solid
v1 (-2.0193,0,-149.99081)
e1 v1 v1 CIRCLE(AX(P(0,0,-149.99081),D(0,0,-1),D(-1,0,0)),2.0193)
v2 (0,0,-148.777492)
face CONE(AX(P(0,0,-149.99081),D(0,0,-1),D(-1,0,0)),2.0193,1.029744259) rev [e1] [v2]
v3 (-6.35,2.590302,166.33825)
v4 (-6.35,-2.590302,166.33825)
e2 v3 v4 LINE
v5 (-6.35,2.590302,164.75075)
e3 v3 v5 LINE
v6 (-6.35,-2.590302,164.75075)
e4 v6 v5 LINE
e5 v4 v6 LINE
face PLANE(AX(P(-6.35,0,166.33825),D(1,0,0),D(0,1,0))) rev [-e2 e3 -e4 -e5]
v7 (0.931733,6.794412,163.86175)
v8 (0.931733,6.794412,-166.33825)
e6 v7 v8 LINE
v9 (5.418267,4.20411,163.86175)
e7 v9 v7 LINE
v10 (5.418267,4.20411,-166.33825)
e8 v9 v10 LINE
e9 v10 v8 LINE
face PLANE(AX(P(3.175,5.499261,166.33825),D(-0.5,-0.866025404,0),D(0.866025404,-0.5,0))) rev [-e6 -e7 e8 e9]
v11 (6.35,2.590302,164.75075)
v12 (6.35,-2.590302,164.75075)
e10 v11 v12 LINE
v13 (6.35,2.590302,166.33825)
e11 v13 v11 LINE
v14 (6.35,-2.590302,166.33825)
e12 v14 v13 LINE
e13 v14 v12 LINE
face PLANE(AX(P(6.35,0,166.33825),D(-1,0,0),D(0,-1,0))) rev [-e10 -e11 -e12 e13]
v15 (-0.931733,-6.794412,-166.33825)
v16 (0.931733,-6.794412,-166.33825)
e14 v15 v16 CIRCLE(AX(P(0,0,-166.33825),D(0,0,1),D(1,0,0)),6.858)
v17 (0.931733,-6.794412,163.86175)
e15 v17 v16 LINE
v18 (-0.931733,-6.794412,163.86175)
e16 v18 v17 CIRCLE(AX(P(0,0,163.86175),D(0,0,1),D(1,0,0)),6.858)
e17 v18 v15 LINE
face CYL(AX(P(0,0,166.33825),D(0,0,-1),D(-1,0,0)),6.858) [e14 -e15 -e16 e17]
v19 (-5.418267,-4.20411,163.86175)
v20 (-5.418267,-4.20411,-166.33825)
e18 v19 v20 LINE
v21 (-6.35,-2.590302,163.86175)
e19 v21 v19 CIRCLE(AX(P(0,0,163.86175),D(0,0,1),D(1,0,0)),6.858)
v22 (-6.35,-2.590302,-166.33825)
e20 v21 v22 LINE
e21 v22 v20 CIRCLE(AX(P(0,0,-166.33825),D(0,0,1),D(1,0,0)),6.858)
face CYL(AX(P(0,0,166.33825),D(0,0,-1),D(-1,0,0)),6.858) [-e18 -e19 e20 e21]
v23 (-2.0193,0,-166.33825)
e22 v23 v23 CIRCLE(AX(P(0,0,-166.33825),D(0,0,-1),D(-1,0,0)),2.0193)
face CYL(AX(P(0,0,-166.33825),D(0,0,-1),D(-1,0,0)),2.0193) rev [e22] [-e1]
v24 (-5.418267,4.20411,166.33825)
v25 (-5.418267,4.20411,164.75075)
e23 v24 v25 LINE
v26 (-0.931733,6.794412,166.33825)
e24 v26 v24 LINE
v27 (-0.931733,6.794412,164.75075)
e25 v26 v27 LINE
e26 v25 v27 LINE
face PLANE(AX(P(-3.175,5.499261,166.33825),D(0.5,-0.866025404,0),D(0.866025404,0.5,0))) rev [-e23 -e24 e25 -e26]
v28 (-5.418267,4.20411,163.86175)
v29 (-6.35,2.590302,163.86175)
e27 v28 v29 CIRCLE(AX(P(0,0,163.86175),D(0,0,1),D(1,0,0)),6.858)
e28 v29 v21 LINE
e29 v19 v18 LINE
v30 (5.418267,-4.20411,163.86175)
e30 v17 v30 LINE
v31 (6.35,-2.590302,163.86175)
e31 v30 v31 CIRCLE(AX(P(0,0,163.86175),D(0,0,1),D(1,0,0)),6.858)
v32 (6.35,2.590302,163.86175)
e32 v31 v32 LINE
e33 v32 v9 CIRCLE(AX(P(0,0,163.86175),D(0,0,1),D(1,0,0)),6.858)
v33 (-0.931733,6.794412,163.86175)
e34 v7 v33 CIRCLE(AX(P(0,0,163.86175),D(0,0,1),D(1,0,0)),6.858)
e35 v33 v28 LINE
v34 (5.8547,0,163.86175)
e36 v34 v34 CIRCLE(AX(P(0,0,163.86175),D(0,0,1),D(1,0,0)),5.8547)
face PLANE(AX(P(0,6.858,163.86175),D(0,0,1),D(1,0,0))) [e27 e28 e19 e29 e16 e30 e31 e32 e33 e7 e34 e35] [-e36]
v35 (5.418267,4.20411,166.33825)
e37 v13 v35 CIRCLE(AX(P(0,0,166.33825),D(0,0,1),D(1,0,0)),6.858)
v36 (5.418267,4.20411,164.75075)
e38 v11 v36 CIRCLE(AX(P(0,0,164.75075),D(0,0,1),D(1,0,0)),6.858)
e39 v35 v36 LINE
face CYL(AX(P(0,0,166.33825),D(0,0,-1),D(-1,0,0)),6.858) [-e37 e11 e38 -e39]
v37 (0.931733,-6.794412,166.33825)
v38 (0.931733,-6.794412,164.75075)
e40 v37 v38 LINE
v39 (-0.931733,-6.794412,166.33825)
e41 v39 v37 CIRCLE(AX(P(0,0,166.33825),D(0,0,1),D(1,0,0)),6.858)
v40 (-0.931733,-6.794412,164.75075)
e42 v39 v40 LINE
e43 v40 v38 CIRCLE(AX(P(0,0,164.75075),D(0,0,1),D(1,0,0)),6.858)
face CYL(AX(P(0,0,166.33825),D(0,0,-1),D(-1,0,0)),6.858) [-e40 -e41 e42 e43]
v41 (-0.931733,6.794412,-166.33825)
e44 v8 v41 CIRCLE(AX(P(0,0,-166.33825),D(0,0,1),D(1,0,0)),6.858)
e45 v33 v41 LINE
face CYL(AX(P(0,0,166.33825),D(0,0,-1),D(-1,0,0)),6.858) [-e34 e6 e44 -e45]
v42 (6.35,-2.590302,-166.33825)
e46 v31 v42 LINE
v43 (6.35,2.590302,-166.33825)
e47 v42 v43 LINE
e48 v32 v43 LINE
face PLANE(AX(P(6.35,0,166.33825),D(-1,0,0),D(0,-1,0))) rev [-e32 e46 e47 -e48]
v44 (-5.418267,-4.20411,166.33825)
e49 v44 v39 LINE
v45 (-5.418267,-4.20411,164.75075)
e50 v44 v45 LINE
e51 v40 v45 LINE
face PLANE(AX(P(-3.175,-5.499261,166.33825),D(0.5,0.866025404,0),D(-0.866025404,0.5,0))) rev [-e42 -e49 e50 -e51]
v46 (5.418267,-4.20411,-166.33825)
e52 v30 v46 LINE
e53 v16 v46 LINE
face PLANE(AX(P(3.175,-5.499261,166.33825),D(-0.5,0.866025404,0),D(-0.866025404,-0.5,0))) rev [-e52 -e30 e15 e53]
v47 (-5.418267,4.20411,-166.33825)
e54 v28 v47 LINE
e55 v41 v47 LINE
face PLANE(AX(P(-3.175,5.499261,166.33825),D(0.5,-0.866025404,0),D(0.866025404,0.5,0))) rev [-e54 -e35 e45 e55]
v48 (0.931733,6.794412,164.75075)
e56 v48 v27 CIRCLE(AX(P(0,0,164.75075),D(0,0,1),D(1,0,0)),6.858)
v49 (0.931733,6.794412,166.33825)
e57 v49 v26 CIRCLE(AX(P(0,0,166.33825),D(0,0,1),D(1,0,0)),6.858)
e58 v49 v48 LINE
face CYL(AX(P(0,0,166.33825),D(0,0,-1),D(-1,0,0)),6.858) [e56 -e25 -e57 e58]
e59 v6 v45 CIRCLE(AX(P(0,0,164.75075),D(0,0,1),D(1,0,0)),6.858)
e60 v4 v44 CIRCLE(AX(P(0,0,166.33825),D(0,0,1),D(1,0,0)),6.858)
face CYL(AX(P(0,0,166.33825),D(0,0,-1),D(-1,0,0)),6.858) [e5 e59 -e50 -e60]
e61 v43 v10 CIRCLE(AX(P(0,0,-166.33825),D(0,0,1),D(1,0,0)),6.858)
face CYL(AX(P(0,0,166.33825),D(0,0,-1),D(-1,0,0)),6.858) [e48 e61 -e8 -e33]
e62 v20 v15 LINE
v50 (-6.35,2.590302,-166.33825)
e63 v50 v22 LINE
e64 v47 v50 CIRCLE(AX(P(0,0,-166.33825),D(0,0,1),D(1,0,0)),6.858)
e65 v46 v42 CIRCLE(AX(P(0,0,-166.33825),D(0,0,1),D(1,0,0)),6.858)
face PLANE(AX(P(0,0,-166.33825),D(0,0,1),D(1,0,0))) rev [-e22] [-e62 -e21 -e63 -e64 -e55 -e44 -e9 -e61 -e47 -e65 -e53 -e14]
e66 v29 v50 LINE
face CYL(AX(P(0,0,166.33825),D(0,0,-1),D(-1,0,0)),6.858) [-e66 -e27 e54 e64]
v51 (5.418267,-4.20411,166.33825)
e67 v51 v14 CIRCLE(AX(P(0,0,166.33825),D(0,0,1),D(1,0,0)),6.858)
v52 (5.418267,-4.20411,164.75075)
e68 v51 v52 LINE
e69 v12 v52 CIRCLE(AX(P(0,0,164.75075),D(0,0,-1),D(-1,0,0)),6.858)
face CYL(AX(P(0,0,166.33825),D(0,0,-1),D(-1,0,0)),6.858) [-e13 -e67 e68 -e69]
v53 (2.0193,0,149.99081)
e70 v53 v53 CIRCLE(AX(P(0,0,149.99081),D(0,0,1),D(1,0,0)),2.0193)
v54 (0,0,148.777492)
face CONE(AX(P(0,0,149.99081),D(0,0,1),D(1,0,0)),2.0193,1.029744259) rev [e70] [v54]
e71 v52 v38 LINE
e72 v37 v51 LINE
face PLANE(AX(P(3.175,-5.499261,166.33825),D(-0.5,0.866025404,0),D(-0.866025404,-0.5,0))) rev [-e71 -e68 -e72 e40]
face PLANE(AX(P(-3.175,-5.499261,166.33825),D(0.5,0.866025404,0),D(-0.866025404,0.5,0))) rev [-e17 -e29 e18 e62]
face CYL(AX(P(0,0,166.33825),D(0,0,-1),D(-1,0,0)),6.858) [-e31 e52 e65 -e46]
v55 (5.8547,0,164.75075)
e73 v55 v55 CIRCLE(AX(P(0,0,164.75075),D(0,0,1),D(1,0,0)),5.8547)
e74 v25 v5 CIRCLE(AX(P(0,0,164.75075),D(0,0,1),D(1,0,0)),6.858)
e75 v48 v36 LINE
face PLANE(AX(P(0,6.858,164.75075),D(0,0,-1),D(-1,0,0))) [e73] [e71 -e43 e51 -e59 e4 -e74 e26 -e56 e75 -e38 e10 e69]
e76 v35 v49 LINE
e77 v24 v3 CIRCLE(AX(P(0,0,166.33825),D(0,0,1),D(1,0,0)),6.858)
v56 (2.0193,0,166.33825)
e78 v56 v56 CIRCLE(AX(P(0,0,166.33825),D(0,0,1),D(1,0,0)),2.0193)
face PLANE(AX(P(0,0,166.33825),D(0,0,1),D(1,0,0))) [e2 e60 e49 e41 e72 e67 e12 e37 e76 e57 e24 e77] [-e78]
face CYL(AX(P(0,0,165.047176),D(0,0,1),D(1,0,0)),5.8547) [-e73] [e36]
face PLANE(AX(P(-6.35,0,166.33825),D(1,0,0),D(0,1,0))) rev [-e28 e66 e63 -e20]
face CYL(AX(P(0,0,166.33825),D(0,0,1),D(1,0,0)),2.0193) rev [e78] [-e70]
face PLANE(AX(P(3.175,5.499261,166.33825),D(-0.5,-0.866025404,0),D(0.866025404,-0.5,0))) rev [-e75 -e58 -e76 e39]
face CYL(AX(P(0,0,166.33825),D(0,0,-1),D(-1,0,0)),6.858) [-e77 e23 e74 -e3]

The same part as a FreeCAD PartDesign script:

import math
import FreeCAD as App
import Part
import Sketcher
Q = App.Units.Quantity

doc = App.newDocument("Part")
body = doc.addObject("PartDesign::Body", "Body")

# Sketch on XY plane
sketch1 = doc.addObject("Sketcher::SketchObject", "Sketch")
body.addObject(sketch1)
sketch1.AttachmentSupport = (doc.XY_Plane, [""])
sketch1.MapMode = "FlatFace"
sketch1.addGeometry(Part.ArcOfCircle(Part.Circle(App.Vector(0, 0, 0), App.Vector(0, 0, 1), 6.9), math.radians(82.19), math.radians(97.81)), False)
sketch1.addGeometry(Part.LineSegment(App.Vector(-0.9, 6.8, 0), App.Vector(-5.4, 4.2, 0)), False)
sketch1.addGeometry(Part.ArcOfCircle(Part.Circle(App.Vector(0, 0, 0), App.Vector(0, 0, 1), 6.9), math.radians(142.19), math.radians(157.81)), False)
sketch1.addGeometry(Part.LineSegment(App.Vector(-6.3, 2.6, 0), App.Vector(-6.3, -2.6, 0)), False)
sketch1.addGeometry(Part.ArcOfCircle(Part.Circle(App.Vector(0, 0, 0), App.Vector(0, 0, 1), 6.9), math.radians(-157.81), math.radians(-142.19)), False)
sketch1.addGeometry(Part.LineSegment(App.Vector(-5.4, -4.2, 0), App.Vector(-0.9, -6.8, 0)), False)
sketch1.addGeometry(Part.ArcOfCircle(Part.Circle(App.Vector(0, 0, 0), App.Vector(0, 0, 1), 6.9), math.radians(-97.81), math.radians(-82.19)), False)
sketch1.addGeometry(Part.LineSegment(App.Vector(0.9, -6.8, 0), App.Vector(5.4, -4.2, 0)), False)
sketch1.addGeometry(Part.ArcOfCircle(Part.Circle(App.Vector(0, 0, 0), App.Vector(0, 0, 1), 6.9), math.radians(-37.81), math.radians(-22.19)), False)
sketch1.addGeometry(Part.LineSegment(App.Vector(6.3, -2.6, 0), App.Vector(6.3, 2.6, 0)), False)
sketch1.addGeometry(Part.ArcOfCircle(Part.Circle(App.Vector(0, 0, 0), App.Vector(0, 0, 1), 6.9), math.radians(22.19), math.radians(37.81)), False)
sketch1.addGeometry(Part.LineSegment(App.Vector(5.4, 4.2, 0), App.Vector(0.9, 6.8, 0)), False)
sketch1.addConstraint(Sketcher.Constraint("Coincident", 0, 2, 1, 1))
sketch1.addConstraint(Sketcher.Constraint("Coincident", 1, 2, 2, 1))
sketch1.addConstraint(Sketcher.Constraint("Coincident", 2, 2, 3, 1))
sketch1.addConstraint(Sketcher.Constraint("Coincident", 3, 2, 4, 1))
sketch1.addConstraint(Sketcher.Constraint("Coincident", 4, 2, 5, 1))
sketch1.addConstraint(Sketcher.Constraint("Coincident", 5, 2, 6, 1))
sketch1.addConstraint(Sketcher.Constraint("Coincident", 6, 2, 7, 1))
sketch1.addConstraint(Sketcher.Constraint("Coincident", 7, 2, 8, 1))
sketch1.addConstraint(Sketcher.Constraint("Coincident", 8, 2, 9, 1))
sketch1.addConstraint(Sketcher.Constraint("Coincident", 9, 2, 10, 1))
sketch1.addConstraint(Sketcher.Constraint("Coincident", 10, 2, 11, 1))
sketch1.addConstraint(Sketcher.Constraint("Coincident", 11, 2, 0, 1))
sketch1.addConstraint(Sketcher.Constraint("Vertical", 3))
sketch1.addConstraint(Sketcher.Constraint("Vertical", 9))
sketch1.addConstraint(Sketcher.Constraint("Coincident", 0, 3, -1, 1))
sketch1.addConstraint(Sketcher.Constraint("Coincident", 2, 3, -1, 1))
sketch1.addConstraint(Sketcher.Constraint("Coincident", 4, 3, -1, 1))
sketch1.addConstraint(Sketcher.Constraint("Coincident", 6, 3, -1, 1))
sketch1.addConstraint(Sketcher.Constraint("Coincident", 8, 3, -1, 1))
sketch1.addConstraint(Sketcher.Constraint("Coincident", 10, 3, -1, 1))
sketch1.addConstraint(Sketcher.Constraint("Equal", 0, 2))
sketch1.addConstraint(Sketcher.Constraint("Equal", 2, 4))
sketch1.addConstraint(Sketcher.Constraint("Equal", 4, 6))
sketch1.addConstraint(Sketcher.Constraint("Equal", 6, 8))
sketch1.addConstraint(Sketcher.Constraint("Equal", 8, 10))
sketch1.addConstraint(Sketcher.Constraint("Parallel", 1, 7))
sketch1.addConstraint(Sketcher.Constraint("Parallel", 5, 11))
sketch1.addConstraint(Sketcher.Constraint("Horizontal", 5, 2, 6, 2))
sketch1.addConstraint(Sketcher.Constraint("Horizontal", 4, 2, 7, 2))
sketch1.addConstraint(Sketcher.Constraint("Horizontal", 3, 2, 8, 2))
sketch1.addConstraint(Sketcher.Constraint("Horizontal", 1, 2, 10, 2))
sketch1.addConstraint(Sketcher.Constraint("Vertical", 1, 2, 4, 2))
sketch1.addConstraint(Sketcher.Constraint("Radius", 0, Q("0.27 in")))
sketch1.addConstraint(Sketcher.Constraint("Angle", 1, Q("-150 deg")))
sketch1.addConstraint(Sketcher.Constraint("DistanceX", 2, 2, -1, 1, Q("0.25 in")))
sketch1.addConstraint(Sketcher.Constraint("DistanceX", 4, 2, 6, 2, Q("0.25 in")))
pad1 = doc.addObject("PartDesign::Pad", "Pad")
body.addObject(pad1)
pad1.Profile = sketch1
pad1.Length = Q("13.0975 in")
pad1.Midplane = True

# Sketch on XY plane
sketch2 = doc.addObject("Sketcher::SketchObject", "Sketch001")
body.addObject(sketch2)
sketch2.AttachmentSupport = (doc.XY_Plane, [""])
sketch2.MapMode = "FlatFace"
sketch2.AttachmentOffset = App.Placement(App.Vector(0, 0, 166.33825), App.Rotation())
sketch2.addGeometry(Part.Circle(App.Vector(0, 0, 0), App.Vector(0, 0, 1), 2), False)
sketch2.addConstraint(Sketcher.Constraint("Coincident", 0, 3, -1, 1))
sketch2.addConstraint(Sketcher.Constraint("Diameter", 0, Q("0.159 in")))
doc.recompute()
hole = doc.addObject("PartDesign::Hole", "Hole")
body.addObject(hole)
hole.Profile = sketch2
hole.ThreadType = "None"
hole.Diameter = Q("0.159 in")
hole.DepthType = "Dimension"
hole.Depth = Q("0.6436 in")
hole.DrillPoint = "Angled"
hole.DrillPointAngle = 118

# Sketch on XY plane
sketch3 = doc.addObject("Sketcher::SketchObject", "Sketch002")
body.addObject(sketch3)
sketch3.AttachmentSupport = (doc.XY_Plane, [""])
sketch3.MapMode = "FlatFace"
sketch3.AttachmentOffset = App.Placement(App.Vector(0, 0, -166.33825), App.Rotation())
sketch3.addGeometry(Part.Circle(App.Vector(0, 0, 0), App.Vector(0, 0, 1), 2), False)
sketch3.addConstraint(Sketcher.Constraint("Coincident", 0, 3, -1, 1))
sketch3.addConstraint(Sketcher.Constraint("Diameter", 0, Q("0.159 in")))
doc.recompute()
hole2 = doc.addObject("PartDesign::Hole", "Hole001")
body.addObject(hole2)
hole2.Profile = sketch3
hole2.ThreadType = "None"
hole2.Diameter = Q("0.159 in")
hole2.DepthType = "Dimension"
hole2.Depth = Q("0.6436 in")
hole2.DrillPoint = "Angled"
hole2.DrillPointAngle = 118
hole2.Reversed = True

# Sketch on YZ plane
sketch4 = doc.addObject("Sketcher::SketchObject", "Sketch003")
body.addObject(sketch4)
sketch4.AttachmentSupport = (doc.YZ_Plane, [""])
sketch4.MapMode = "FlatFace"
sketch4.addGeometry(Part.LineSegment(App.Vector(6.9, 164.8, 0), App.Vector(5.9, 164.8, 0)), False)
sketch4.addGeometry(Part.LineSegment(App.Vector(5.9, 164.8, 0), App.Vector(5.9, 163.9, 0)), False)
sketch4.addGeometry(Part.LineSegment(App.Vector(5.9, 163.9, 0), App.Vector(6.9, 163.9, 0)), False)
sketch4.addGeometry(Part.LineSegment(App.Vector(6.9, 163.9, 0), App.Vector(6.9, 164.8, 0)), False)
sketch4.addConstraint(Sketcher.Constraint("Coincident", 0, 2, 1, 1))
sketch4.addConstraint(Sketcher.Constraint("Coincident", 1, 2, 2, 1))
sketch4.addConstraint(Sketcher.Constraint("Coincident", 2, 2, 3, 1))
sketch4.addConstraint(Sketcher.Constraint("Coincident", 3, 2, 0, 1))
sketch4.addConstraint(Sketcher.Constraint("Horizontal", 0))
sketch4.addConstraint(Sketcher.Constraint("Vertical", 1))
sketch4.addConstraint(Sketcher.Constraint("Horizontal", 2))
sketch4.addConstraint(Sketcher.Constraint("Vertical", 3))
sketch4.addConstraint(Sketcher.Constraint("DistanceY", 1, 2, 1, 1, Q("0.035 in")))
sketch4.addConstraint(Sketcher.Constraint("DistanceX", -1, 1, 2, 2, Q("0.27 in")))
sketch4.addConstraint(Sketcher.Constraint("DistanceX", 0, 2, 0, 1, Q("0.0395 in")))
sketch4.addConstraint(Sketcher.Constraint("DistanceY", -1, 1, 0, 2, Q("164.75075 mm")))
groove = doc.addObject("PartDesign::Groove", "Groove")
body.addObject(groove)
groove.Profile = sketch4
groove.ReferenceAxis = (sketch4, ["V_Axis"])
groove.Angle = 360

doc.recompute()
